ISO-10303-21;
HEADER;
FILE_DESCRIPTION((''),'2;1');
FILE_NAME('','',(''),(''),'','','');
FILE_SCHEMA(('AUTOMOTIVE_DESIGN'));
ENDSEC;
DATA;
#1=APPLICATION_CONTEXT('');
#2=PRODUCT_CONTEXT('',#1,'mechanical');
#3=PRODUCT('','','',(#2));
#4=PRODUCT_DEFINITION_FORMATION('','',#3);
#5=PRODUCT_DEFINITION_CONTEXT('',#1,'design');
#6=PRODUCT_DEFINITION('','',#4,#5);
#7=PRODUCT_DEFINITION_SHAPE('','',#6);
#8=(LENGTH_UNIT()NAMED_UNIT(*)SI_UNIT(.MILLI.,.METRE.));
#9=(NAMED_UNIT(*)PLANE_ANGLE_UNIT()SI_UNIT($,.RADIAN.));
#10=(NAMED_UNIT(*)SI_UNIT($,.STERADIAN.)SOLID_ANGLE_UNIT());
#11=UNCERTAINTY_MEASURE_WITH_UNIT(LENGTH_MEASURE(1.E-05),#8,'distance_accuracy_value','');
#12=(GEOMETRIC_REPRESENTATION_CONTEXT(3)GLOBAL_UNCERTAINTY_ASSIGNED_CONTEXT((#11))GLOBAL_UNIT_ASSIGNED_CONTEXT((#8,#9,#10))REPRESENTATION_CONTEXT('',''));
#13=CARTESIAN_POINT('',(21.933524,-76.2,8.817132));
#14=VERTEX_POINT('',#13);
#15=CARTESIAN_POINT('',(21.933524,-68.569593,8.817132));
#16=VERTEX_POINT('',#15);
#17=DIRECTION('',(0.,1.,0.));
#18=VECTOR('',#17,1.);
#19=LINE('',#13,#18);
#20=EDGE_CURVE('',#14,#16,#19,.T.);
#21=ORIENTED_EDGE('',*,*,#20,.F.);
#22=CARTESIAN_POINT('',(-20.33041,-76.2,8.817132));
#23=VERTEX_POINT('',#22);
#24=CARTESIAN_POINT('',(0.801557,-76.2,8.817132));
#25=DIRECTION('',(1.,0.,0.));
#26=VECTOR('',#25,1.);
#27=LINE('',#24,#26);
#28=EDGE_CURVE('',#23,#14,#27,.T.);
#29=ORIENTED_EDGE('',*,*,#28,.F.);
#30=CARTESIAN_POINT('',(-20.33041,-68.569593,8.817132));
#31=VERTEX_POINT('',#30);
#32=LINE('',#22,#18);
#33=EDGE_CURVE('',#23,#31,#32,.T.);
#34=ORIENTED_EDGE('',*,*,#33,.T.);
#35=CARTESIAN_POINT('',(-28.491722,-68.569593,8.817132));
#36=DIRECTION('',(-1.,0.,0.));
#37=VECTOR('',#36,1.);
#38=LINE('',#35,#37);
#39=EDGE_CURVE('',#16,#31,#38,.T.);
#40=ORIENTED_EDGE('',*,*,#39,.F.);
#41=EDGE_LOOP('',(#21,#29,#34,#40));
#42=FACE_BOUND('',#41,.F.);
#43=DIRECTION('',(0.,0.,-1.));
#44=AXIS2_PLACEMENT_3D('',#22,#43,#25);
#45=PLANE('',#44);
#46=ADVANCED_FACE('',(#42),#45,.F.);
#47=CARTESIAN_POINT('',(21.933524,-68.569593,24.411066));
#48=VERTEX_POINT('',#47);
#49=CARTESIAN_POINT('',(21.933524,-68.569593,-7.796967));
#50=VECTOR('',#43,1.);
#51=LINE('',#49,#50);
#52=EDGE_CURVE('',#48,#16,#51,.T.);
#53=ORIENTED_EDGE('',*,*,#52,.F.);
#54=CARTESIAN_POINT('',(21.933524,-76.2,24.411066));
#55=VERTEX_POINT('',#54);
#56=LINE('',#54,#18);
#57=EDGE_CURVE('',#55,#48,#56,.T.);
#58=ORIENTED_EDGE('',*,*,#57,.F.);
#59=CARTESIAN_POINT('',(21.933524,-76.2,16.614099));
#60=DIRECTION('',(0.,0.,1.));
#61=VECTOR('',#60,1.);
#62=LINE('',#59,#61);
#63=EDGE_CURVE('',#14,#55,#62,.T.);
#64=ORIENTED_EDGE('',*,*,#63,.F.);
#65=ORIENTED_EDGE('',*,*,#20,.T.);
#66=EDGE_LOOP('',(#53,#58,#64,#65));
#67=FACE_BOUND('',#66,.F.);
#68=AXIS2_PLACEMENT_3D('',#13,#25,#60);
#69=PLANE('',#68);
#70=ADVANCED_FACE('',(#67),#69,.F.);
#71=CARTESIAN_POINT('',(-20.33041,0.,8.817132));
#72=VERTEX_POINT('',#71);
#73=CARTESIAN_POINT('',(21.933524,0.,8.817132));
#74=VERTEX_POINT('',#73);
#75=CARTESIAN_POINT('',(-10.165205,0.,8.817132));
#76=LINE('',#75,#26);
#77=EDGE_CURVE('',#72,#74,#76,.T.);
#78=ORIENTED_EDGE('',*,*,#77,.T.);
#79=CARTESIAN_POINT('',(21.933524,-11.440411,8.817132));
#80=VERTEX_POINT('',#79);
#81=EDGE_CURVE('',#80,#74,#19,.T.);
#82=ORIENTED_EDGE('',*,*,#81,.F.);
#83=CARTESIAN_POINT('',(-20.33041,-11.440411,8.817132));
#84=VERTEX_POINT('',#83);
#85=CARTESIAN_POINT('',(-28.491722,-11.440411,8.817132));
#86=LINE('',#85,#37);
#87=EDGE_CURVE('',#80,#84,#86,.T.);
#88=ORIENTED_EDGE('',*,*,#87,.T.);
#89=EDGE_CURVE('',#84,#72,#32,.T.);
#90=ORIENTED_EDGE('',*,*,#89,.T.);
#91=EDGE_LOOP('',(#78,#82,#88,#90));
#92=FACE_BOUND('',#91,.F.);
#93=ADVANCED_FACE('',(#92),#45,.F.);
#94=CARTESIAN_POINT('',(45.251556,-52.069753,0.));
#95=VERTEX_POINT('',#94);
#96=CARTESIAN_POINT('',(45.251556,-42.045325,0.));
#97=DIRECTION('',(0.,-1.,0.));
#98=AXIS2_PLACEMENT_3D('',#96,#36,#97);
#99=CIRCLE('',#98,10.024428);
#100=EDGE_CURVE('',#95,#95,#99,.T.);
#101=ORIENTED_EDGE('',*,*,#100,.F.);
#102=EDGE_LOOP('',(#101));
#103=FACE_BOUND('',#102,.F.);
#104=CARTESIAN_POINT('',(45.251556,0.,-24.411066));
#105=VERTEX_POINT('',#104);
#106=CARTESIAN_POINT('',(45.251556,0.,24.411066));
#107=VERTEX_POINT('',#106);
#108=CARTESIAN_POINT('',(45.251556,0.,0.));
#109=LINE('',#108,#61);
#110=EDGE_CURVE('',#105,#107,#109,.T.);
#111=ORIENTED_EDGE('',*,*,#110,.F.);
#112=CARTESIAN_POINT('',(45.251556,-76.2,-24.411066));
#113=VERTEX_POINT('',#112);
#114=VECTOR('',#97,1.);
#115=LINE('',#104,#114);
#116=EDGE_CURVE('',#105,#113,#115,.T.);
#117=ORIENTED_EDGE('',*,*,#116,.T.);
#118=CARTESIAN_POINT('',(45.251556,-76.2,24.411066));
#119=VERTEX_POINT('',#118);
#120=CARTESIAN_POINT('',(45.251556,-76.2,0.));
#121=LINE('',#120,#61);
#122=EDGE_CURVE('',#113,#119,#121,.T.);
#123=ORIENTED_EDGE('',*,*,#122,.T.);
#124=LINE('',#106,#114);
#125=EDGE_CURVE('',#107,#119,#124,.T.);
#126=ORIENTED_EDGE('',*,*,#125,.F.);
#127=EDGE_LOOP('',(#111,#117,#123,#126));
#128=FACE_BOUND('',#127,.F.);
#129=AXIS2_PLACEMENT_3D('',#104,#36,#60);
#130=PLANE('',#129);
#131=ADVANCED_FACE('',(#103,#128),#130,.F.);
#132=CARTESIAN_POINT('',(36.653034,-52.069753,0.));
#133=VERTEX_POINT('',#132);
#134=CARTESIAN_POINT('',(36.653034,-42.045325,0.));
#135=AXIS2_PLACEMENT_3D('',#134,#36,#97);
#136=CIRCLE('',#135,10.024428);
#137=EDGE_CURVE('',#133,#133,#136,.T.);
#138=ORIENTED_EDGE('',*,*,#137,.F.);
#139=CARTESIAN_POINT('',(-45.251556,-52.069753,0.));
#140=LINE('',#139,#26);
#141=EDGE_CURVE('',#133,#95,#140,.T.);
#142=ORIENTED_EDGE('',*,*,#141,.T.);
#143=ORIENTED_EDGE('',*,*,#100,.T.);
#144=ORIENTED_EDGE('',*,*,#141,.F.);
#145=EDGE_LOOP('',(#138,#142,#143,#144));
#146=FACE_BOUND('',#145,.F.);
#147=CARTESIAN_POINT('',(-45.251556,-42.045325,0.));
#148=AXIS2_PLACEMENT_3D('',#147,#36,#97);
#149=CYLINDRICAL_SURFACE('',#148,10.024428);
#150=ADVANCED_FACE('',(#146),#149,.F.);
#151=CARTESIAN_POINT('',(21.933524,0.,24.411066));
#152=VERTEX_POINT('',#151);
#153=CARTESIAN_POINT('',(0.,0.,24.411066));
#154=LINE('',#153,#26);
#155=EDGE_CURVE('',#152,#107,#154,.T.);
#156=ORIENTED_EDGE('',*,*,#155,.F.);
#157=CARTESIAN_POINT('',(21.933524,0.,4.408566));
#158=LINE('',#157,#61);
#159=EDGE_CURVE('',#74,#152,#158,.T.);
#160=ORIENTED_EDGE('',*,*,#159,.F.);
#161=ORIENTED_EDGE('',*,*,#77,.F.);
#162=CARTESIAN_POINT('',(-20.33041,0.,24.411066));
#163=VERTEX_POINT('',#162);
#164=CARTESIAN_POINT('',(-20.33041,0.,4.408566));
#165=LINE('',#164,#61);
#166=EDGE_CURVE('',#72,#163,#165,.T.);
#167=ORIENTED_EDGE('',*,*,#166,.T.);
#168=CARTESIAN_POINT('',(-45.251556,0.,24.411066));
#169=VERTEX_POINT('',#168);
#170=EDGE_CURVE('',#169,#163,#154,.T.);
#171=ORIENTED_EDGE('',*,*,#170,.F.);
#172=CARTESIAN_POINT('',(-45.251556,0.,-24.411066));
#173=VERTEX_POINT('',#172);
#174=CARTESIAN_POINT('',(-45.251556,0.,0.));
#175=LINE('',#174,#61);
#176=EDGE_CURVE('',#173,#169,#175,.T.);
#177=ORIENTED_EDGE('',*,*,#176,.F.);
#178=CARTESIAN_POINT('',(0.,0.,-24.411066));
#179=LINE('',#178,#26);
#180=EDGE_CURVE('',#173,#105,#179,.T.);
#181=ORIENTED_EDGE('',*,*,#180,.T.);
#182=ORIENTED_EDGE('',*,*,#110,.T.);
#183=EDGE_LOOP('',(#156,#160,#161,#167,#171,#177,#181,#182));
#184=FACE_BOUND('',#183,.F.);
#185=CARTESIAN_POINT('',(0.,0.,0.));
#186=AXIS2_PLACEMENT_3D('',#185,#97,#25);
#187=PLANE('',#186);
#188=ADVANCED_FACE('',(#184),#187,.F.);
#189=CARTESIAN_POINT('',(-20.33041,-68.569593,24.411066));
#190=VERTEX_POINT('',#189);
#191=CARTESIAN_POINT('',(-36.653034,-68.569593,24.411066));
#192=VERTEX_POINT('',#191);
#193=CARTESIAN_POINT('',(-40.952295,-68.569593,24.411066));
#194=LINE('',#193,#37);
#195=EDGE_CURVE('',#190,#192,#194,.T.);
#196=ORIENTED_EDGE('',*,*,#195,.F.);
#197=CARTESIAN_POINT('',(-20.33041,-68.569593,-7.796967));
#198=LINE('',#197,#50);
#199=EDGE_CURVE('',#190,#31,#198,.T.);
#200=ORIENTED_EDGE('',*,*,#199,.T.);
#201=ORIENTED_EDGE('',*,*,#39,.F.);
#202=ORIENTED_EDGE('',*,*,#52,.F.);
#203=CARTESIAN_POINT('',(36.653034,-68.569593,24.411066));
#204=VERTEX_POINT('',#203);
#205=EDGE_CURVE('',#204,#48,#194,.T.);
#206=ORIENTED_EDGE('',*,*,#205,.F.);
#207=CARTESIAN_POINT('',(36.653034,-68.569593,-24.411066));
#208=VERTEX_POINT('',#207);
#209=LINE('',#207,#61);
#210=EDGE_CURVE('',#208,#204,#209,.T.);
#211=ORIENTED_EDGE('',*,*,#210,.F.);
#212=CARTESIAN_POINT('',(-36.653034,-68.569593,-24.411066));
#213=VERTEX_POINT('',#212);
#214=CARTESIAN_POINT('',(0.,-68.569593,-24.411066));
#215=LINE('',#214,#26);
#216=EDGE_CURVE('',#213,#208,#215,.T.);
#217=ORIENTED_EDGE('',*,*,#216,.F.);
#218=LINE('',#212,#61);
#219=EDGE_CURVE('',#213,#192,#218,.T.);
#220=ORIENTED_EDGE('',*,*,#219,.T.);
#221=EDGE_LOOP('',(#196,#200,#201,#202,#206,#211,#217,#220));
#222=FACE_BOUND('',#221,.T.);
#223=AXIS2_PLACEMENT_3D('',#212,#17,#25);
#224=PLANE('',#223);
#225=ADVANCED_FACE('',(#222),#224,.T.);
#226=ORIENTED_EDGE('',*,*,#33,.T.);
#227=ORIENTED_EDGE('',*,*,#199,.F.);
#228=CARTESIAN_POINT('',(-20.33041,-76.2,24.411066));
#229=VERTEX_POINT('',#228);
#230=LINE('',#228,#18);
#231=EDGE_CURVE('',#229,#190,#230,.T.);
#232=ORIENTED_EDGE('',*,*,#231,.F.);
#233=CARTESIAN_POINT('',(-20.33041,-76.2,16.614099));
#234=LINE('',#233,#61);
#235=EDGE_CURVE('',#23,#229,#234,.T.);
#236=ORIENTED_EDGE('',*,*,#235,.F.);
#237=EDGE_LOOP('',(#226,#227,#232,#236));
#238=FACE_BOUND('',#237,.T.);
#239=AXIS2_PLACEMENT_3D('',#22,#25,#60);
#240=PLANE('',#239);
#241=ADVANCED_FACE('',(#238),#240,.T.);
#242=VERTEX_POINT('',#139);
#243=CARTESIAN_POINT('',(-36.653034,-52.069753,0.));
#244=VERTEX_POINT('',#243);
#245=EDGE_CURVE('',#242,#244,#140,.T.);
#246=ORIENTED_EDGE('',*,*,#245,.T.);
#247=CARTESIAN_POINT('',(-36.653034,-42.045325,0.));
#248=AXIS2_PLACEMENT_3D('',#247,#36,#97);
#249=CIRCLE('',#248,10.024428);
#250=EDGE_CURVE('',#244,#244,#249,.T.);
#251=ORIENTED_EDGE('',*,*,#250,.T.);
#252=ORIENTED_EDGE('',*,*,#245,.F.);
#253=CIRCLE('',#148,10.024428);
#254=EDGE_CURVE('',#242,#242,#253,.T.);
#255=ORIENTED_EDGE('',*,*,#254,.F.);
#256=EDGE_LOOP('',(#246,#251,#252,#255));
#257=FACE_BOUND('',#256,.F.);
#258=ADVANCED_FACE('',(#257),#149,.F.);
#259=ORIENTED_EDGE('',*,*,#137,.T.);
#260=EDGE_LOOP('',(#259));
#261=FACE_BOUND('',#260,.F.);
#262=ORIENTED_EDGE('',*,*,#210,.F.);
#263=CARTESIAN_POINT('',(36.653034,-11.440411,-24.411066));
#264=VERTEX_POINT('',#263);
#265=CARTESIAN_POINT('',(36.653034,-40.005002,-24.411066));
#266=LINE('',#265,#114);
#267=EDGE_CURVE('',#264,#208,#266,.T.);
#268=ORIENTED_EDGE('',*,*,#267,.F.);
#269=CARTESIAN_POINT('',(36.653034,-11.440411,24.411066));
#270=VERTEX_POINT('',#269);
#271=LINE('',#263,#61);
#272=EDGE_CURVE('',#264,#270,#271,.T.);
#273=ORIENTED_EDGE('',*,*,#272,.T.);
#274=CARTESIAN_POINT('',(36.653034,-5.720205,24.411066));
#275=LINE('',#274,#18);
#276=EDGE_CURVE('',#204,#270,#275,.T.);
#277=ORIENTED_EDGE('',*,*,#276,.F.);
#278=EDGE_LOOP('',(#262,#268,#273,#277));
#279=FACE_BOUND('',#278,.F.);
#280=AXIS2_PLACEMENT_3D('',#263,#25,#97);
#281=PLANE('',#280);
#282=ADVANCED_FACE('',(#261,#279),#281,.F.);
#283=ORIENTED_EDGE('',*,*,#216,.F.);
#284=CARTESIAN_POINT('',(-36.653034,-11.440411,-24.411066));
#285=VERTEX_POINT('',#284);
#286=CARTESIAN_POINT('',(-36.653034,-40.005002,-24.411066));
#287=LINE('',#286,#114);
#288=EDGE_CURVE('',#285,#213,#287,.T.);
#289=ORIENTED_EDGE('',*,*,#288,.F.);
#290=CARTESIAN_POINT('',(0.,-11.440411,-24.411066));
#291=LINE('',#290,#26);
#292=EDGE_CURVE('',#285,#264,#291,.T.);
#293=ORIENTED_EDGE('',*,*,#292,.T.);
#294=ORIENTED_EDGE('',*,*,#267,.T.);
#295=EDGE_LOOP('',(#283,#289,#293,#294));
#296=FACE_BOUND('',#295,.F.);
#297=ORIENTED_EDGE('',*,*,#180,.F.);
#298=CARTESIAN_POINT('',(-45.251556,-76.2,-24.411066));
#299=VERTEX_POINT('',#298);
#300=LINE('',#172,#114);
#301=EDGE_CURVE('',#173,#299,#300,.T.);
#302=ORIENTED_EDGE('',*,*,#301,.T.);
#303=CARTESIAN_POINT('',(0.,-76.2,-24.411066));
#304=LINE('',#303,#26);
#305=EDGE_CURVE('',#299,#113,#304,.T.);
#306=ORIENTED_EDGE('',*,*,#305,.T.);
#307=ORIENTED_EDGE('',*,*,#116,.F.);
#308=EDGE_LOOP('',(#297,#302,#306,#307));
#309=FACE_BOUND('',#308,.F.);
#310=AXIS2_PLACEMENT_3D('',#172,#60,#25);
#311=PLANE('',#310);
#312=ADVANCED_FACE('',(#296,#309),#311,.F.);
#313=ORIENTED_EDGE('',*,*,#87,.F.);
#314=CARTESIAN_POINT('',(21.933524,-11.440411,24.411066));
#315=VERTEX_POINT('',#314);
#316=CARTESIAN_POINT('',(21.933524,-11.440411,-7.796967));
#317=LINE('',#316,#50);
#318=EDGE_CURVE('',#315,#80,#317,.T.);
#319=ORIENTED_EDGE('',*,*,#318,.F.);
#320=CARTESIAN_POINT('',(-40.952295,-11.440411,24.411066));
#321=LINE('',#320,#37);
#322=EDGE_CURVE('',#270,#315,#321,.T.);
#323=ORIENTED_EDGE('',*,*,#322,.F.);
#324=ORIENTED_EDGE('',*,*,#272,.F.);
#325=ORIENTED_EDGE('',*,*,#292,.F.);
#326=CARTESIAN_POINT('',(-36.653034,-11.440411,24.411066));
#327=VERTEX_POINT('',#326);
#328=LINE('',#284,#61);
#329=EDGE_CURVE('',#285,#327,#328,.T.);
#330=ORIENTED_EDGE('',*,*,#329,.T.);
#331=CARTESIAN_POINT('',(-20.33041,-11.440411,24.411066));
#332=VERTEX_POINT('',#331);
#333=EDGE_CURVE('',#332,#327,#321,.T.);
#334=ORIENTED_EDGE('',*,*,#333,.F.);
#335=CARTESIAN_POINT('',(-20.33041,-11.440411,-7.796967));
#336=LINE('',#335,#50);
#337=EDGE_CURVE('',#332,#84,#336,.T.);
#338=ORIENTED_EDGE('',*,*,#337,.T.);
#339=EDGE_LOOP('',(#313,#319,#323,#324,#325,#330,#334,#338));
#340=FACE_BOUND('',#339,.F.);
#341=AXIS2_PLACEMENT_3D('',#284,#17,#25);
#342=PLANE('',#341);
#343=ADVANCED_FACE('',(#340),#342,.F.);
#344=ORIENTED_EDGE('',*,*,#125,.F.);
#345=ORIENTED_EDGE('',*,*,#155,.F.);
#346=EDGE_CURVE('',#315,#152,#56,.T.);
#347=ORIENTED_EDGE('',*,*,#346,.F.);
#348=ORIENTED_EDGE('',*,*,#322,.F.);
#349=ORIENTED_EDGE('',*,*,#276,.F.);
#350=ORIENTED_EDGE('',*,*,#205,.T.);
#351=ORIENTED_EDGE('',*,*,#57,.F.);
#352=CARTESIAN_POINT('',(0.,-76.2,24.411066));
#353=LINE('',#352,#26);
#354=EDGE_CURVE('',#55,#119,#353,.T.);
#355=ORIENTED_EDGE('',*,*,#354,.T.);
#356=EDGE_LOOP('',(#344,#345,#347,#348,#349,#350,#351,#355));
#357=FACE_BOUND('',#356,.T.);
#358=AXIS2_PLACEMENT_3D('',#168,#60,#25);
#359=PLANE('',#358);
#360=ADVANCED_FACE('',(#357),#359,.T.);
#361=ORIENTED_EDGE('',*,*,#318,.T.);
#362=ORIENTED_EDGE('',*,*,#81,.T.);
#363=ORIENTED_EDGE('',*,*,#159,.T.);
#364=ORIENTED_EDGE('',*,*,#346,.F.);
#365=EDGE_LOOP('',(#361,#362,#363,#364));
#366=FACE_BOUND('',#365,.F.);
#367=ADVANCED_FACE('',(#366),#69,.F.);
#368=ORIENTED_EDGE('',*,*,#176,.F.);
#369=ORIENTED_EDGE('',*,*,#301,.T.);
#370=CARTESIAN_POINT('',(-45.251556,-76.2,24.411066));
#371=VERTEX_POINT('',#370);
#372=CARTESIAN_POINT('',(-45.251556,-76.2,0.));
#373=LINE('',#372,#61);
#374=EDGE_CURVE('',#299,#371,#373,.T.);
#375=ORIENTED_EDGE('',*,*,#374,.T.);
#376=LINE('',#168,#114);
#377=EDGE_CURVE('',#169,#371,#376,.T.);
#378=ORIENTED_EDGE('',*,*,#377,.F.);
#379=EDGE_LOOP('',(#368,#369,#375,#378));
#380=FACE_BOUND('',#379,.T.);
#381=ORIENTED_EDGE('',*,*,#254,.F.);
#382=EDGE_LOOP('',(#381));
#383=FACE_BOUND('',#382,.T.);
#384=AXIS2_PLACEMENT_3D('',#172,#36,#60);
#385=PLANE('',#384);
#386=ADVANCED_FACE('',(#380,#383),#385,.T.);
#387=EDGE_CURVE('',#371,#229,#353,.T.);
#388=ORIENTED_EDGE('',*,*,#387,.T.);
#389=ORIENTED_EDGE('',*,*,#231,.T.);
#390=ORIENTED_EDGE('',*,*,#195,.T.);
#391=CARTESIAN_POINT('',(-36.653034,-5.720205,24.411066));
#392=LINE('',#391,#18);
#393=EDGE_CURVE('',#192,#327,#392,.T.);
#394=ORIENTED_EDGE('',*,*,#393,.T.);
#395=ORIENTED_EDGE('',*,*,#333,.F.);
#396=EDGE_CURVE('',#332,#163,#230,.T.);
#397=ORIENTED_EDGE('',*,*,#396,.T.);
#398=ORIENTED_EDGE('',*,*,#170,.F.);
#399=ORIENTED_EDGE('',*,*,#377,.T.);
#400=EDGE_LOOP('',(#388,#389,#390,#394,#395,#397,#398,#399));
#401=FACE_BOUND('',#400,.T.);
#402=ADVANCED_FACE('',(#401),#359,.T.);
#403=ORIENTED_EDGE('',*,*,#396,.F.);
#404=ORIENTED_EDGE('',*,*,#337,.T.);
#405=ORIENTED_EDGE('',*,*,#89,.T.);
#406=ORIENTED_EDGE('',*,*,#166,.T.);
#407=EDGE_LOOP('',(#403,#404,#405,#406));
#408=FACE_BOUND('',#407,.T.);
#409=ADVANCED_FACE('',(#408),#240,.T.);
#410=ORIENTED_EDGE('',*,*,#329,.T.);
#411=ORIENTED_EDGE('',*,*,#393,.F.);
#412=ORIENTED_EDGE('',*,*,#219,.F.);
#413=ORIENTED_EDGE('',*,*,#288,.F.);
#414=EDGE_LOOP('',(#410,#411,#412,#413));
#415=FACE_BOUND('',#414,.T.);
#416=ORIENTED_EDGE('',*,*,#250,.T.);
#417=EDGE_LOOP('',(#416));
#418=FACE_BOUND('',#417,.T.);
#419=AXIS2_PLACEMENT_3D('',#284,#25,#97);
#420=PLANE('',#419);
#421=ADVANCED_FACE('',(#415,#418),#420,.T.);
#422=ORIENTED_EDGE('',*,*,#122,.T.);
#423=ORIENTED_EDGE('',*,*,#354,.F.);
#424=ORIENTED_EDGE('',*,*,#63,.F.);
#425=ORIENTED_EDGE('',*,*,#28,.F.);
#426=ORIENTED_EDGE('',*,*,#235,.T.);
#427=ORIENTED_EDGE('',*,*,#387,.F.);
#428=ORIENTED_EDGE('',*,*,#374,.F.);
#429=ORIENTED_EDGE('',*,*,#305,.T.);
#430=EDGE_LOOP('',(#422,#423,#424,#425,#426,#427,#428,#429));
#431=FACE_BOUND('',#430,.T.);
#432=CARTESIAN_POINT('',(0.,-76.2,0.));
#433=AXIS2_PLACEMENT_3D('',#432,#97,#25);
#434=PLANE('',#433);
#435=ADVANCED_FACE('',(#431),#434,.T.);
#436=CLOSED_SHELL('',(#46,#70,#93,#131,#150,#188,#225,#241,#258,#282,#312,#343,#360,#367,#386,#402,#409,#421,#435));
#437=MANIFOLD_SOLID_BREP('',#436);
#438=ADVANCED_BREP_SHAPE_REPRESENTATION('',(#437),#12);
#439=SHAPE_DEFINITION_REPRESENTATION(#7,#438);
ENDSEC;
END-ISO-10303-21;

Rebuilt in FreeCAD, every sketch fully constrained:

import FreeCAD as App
import Part
import Sketcher
Q = App.Units.Quantity

doc = App.newDocument("Part")
body = doc.addObject("PartDesign::Body", "Body")

# Sketch on XZ plane
sketch1 = body.newObject("Sketcher::SketchObject", "Sketch")
sketch1.AttachmentSupport = (doc.getObject("XZ_Plane"), [""])
sketch1.MapMode = "FlatFace"
sketch1.addGeometry(Part.LineSegment(App.Vector(-45.251556, 24.411066, 0), App.Vector(-45.251556, -24.411066, 0)), False)
sketch1.addGeometry(Part.LineSegment(App.Vector(-45.251556, -24.411066, 0), App.Vector(45.251556, -24.411066, 0)), False)
sketch1.addGeometry(Part.LineSegment(App.Vector(45.251556, -24.411066, 0), App.Vector(45.251556, 24.411066, 0)), False)
sketch1.addGeometry(Part.LineSegment(App.Vector(45.251556, 24.411066, 0), App.Vector(-45.251556, 24.411066, 0)), False)
sketch1.addConstraint(Sketcher.Constraint("Coincident", 0, 2, 1, 1))
sketch1.addConstraint(Sketcher.Constraint("Coincident", 1, 2, 2, 1))
sketch1.addConstraint(Sketcher.Constraint("Coincident", 2, 2, 3, 1))
sketch1.addConstraint(Sketcher.Constraint("Coincident", 3, 2, 0, 1))
sketch1.addConstraint(Sketcher.Constraint("Vertical", 0))
sketch1.addConstraint(Sketcher.Constraint("Horizontal", 1))
sketch1.addConstraint(Sketcher.Constraint("Vertical", 2))
sketch1.addConstraint(Sketcher.Constraint("Horizontal", 3))
sketch1.addConstraint(Sketcher.Constraint("Symmetric", 0, 2, 2, 2, -1, 1))
sketch1.addConstraint(Sketcher.Constraint("DistanceX", 1, 1, 1, 2, Q("90.503112 mm")))
sketch1.addConstraint(Sketcher.Constraint("DistanceY", 0, 2, 0, 1, Q("48.822132 mm")))
pad1 = body.newObject("PartDesign::Pad", "Pad")
pad1.Profile = sketch1
pad1.Length = Q("3 in")

# Sketch on XY plane
sketch2 = body.newObject("Sketcher::SketchObject", "Sketch001")
sketch2.AttachmentSupport = (doc.getObject("XY_Plane"), [""])
sketch2.MapMode = "FlatFace"
sketch2.AttachmentOffset = App.Placement(App.Vector(0, 0, -24.411066), App.Rotation())
sketch2.addGeometry(Part.LineSegment(App.Vector(-36.653034, -68.569593, 0), App.Vector(-36.653034, -11.440411, 0)), False)
sketch2.addGeometry(Part.LineSegment(App.Vector(-36.653034, -11.440411, 0), App.Vector(36.653034, -11.440411, 0)), False)
sketch2.addGeometry(Part.LineSegment(App.Vector(36.653034, -11.440411, 0), App.Vector(36.653034, -68.569593, 0)), False)
sketch2.addGeometry(Part.LineSegment(App.Vector(36.653034, -68.569593, 0), App.Vector(-36.653034, -68.569593, 0)), False)
sketch2.addConstraint(Sketcher.Constraint("Coincident", 0, 2, 1, 1))
sketch2.addConstraint(Sketcher.Constraint("Coincident", 1, 2, 2, 1))
sketch2.addConstraint(Sketcher.Constraint("Coincident", 2, 2, 3, 1))
sketch2.addConstraint(Sketcher.Constraint("Coincident", 3, 2, 0, 1))
sketch2.addConstraint(Sketcher.Constraint("Vertical", 0))
sketch2.addConstraint(Sketcher.Constraint("Horizontal", 1))
sketch2.addConstraint(Sketcher.Constraint("Vertical", 2))
sketch2.addConstraint(Sketcher.Constraint("Horizontal", 3))
sketch2.addConstraint(Sketcher.Constraint("DistanceX", 1, 1, 1, 2, Q("73.306068 mm")))
sketch2.addConstraint(Sketcher.Constraint("DistanceY", 0, 1, 0, 2, Q("57.129182 mm")))
sketch2.addConstraint(Sketcher.Constraint("DistanceY", 0, 2, -1, 1, Q("11.440411 mm")))
sketch2.addConstraint(Sketcher.Constraint("DistanceX", 0, 2, -1, 1, Q("36.653034 mm")))
pocket1 = body.newObject("PartDesign::Pocket", "Pocket")
pocket1.Profile = sketch2
pocket1.Length = Q("3 in")
pocket1.Reversed = True

# Sketch on YZ plane
sketch3 = body.newObject("Sketcher::SketchObject", "Sketch002")
sketch3.AttachmentSupport = (doc.getObject("YZ_Plane"), [""])
sketch3.MapMode = "FlatFace"
sketch3.AttachmentOffset = App.Placement(App.Vector(0, 0, -45.251556), App.Rotation())
sketch3.addGeometry(Part.Circle(App.Vector(-42.045325, 0, 0), App.Vector(0, 0, 1), 10.024428), False)
sketch3.addConstraint(Sketcher.Constraint("PointOnObject", 0, 3, -1))
sketch3.addConstraint(Sketcher.Constraint("Diameter", 0, Q("20.048856 mm")))
sketch3.addConstraint(Sketcher.Constraint("DistanceX", 0, 3, -1, 1, Q("42.045325 mm")))
pocket2 = body.newObject("PartDesign::Pocket", "Pocket001")
pocket2.Profile = sketch3
pocket2.Length = Q("4 in")
pocket2.Reversed = True

# Sketch on XZ plane
sketch4 = body.newObject("Sketcher::SketchObject", "Sketch003")
sketch4.AttachmentSupport = (doc.getObject("XZ_Plane"), [""])
sketch4.MapMode = "FlatFace"
sketch4.AttachmentOffset = App.Placement(App.Vector(0, 0, 3 * 25.4), App.Rotation())
sketch4.addGeometry(Part.LineSegment(App.Vector(-20.33041, 24.411066, 0), App.Vector(-20.33041, 8.817132, 0)), False)
sketch4.addGeometry(Part.LineSegment(App.Vector(-20.33041, 8.817132, 0), App.Vector(21.933524, 8.817132, 0)), False)
sketch4.addGeometry(Part.LineSegment(App.Vector(21.933524, 8.817132, 0), App.Vector(21.933524, 24.411066, 0)), False)
sketch4.addGeometry(Part.LineSegment(App.Vector(21.933524, 24.411066, 0), App.Vector(-20.33041, 24.411066, 0)), False)
sketch4.addConstraint(Sketcher.Constraint("Coincident", 0, 2, 1, 1))
sketch4.addConstraint(Sketcher.Constraint("Coincident", 1, 2, 2, 1))
sketch4.addConstraint(Sketcher.Constraint("Coincident", 2, 2, 3, 1))
sketch4.addConstraint(Sketcher.Constraint("Coincident", 3, 2, 0, 1))
sketch4.addConstraint(Sketcher.Constraint("Vertical", 0))
sketch4.addConstraint(Sketcher.Constraint("Horizontal", 1))
sketch4.addConstraint(Sketcher.Constraint("Vertical", 2))
sketch4.addConstraint(Sketcher.Constraint("Horizontal", 3))
sketch4.addConstraint(Sketcher.Constraint("DistanceX", 1, 1, 1, 2, Q("42.263934 mm")))
sketch4.addConstraint(Sketcher.Constraint("DistanceY", 0, 2, 0, 1, Q("15.593934 mm")))
sketch4.addConstraint(Sketcher.Constraint("DistanceX", 0, 2, -1, 1, Q("20.33041 mm")))
sketch4.addConstraint(Sketcher.Constraint("DistanceY", -1, 1, 0, 2, Q("8.817132 mm")))
pocket3 = body.newObject("PartDesign::Pocket", "Pocket002")
pocket3.Profile = sketch4
pocket3.Length = Q("4 in")

doc.recompute()
